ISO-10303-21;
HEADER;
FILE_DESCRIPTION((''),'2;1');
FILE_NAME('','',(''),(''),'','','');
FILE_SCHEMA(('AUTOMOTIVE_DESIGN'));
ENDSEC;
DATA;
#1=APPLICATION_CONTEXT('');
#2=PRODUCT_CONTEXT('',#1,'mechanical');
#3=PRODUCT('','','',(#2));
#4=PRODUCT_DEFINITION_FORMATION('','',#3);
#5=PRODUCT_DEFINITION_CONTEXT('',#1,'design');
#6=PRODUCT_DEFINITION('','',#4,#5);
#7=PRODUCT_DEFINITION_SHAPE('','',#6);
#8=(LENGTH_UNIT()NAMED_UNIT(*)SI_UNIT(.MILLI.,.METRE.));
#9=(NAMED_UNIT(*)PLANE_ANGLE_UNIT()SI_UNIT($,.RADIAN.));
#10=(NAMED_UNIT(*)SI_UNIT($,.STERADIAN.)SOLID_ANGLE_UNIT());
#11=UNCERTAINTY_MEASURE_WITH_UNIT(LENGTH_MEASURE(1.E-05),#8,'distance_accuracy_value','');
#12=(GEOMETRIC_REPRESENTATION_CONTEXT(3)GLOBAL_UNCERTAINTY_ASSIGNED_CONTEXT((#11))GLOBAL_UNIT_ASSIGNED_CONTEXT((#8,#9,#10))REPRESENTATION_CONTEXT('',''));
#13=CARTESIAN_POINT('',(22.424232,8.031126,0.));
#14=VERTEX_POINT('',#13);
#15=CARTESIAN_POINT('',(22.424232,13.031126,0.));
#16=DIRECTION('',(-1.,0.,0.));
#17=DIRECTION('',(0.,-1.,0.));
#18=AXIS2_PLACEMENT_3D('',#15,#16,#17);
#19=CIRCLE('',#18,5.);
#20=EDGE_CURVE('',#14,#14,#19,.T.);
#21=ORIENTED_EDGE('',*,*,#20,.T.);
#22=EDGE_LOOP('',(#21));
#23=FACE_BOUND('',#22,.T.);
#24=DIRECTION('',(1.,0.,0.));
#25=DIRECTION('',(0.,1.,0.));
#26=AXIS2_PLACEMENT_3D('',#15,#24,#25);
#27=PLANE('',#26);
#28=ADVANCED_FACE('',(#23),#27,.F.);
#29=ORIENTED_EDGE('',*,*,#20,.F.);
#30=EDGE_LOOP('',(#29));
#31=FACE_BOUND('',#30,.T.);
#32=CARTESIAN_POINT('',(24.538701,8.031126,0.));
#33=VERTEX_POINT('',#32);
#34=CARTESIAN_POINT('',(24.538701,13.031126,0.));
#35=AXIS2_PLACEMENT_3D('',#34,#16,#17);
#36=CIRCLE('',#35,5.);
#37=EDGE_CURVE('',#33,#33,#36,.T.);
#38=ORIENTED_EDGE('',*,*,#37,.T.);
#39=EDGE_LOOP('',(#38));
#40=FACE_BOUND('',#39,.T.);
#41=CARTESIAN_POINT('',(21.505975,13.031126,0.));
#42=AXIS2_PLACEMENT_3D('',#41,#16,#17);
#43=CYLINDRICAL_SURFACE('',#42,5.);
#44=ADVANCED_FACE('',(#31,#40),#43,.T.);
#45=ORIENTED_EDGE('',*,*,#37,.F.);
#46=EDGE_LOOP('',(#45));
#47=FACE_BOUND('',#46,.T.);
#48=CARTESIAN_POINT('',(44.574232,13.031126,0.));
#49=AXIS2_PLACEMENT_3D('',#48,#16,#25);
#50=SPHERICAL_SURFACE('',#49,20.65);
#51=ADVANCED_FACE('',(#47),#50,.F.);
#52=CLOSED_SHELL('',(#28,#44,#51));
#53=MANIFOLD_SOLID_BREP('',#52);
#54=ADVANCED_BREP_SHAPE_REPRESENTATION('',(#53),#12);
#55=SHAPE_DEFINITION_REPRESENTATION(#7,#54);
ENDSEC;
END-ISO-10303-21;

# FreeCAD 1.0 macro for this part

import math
import FreeCAD as App
import Part
import Sketcher

doc = App.newDocument("Part")
body = doc.addObject("PartDesign::Body", "Body")

sketch1 = body.newObject("Sketcher::SketchObject", "Sketch")
sketch1.AttachmentSupport = (doc.getObject("XY_Plane"), [""])
sketch1.MapMode = "FlatFace"
sketch1.addGeometry(Part.LineSegment(App.Vector(22.4, 18, 0), App.Vector(22.4, 13, 0)), False)
sketch1.addGeometry(Part.LineSegment(App.Vector(22.4, 13, 0), App.Vector(23.9, 13, 0)), False)
sketch1.addGeometry(Part.ArcOfCircle(Part.Circle(App.Vector(44.6, 13, 0), App.Vector(0, 0, 1), 20.6), math.radians(165.99), math.radians(180)), False)
sketch1.addGeometry(Part.LineSegment(App.Vector(24.5, 18, 0), App.Vector(22.4, 18, 0)), False)
sketch1.addGeometry(Part.LineSegment(App.Vector(22.4, 13, 0), App.Vector(44.6, 13, 0)), True)
sketch1.addConstraint(Sketcher.Constraint("Coincident", 0, 2, 1, 1))
sketch1.addConstraint(Sketcher.Constraint("Coincident", 1, 2, 2, 2))
sketch1.addConstraint(Sketcher.Constraint("Coincident", 2, 1, 3, 1))
sketch1.addConstraint(Sketcher.Constraint("Coincident", 3, 2, 0, 1))
sketch1.addConstraint(Sketcher.Constraint("Vertical", 0))
sketch1.addConstraint(Sketcher.Constraint("Horizontal", 1))
sketch1.addConstraint(Sketcher.Constraint("Horizontal", 3))
sketch1.addConstraint(Sketcher.Constraint("Horizontal", 4))
sketch1.addConstraint(Sketcher.Constraint("Coincident", 4, 1, 0, 2))
sketch1.addConstraint(Sketcher.Constraint("Coincident", 4, 2, 2, 3))
sketch1.addConstraint(Sketcher.Constraint("DistanceY", 0, 2, 0, 1, 5.0))
sketch1.addConstraint(Sketcher.Constraint("Radius", 2, 20.65))
sketch1.addConstraint(Sketcher.Constraint("DistanceX", 1, 1, 1, 2, 1.5))
sketch1.addConstraint(Sketcher.Constraint("DistanceX", -1, 1, 2, 1, 24.538701))
sketch1.addConstraint(Sketcher.Constraint("DistanceY", -1, 1, 2, 3, 13.031126))
revolution = body.newObject("PartDesign::Revolution", "Revolution")
revolution.Profile = sketch1
revolution.ReferenceAxis = (sketch1, ["Axis0"])
revolution.Angle = 360

doc.recompute()
